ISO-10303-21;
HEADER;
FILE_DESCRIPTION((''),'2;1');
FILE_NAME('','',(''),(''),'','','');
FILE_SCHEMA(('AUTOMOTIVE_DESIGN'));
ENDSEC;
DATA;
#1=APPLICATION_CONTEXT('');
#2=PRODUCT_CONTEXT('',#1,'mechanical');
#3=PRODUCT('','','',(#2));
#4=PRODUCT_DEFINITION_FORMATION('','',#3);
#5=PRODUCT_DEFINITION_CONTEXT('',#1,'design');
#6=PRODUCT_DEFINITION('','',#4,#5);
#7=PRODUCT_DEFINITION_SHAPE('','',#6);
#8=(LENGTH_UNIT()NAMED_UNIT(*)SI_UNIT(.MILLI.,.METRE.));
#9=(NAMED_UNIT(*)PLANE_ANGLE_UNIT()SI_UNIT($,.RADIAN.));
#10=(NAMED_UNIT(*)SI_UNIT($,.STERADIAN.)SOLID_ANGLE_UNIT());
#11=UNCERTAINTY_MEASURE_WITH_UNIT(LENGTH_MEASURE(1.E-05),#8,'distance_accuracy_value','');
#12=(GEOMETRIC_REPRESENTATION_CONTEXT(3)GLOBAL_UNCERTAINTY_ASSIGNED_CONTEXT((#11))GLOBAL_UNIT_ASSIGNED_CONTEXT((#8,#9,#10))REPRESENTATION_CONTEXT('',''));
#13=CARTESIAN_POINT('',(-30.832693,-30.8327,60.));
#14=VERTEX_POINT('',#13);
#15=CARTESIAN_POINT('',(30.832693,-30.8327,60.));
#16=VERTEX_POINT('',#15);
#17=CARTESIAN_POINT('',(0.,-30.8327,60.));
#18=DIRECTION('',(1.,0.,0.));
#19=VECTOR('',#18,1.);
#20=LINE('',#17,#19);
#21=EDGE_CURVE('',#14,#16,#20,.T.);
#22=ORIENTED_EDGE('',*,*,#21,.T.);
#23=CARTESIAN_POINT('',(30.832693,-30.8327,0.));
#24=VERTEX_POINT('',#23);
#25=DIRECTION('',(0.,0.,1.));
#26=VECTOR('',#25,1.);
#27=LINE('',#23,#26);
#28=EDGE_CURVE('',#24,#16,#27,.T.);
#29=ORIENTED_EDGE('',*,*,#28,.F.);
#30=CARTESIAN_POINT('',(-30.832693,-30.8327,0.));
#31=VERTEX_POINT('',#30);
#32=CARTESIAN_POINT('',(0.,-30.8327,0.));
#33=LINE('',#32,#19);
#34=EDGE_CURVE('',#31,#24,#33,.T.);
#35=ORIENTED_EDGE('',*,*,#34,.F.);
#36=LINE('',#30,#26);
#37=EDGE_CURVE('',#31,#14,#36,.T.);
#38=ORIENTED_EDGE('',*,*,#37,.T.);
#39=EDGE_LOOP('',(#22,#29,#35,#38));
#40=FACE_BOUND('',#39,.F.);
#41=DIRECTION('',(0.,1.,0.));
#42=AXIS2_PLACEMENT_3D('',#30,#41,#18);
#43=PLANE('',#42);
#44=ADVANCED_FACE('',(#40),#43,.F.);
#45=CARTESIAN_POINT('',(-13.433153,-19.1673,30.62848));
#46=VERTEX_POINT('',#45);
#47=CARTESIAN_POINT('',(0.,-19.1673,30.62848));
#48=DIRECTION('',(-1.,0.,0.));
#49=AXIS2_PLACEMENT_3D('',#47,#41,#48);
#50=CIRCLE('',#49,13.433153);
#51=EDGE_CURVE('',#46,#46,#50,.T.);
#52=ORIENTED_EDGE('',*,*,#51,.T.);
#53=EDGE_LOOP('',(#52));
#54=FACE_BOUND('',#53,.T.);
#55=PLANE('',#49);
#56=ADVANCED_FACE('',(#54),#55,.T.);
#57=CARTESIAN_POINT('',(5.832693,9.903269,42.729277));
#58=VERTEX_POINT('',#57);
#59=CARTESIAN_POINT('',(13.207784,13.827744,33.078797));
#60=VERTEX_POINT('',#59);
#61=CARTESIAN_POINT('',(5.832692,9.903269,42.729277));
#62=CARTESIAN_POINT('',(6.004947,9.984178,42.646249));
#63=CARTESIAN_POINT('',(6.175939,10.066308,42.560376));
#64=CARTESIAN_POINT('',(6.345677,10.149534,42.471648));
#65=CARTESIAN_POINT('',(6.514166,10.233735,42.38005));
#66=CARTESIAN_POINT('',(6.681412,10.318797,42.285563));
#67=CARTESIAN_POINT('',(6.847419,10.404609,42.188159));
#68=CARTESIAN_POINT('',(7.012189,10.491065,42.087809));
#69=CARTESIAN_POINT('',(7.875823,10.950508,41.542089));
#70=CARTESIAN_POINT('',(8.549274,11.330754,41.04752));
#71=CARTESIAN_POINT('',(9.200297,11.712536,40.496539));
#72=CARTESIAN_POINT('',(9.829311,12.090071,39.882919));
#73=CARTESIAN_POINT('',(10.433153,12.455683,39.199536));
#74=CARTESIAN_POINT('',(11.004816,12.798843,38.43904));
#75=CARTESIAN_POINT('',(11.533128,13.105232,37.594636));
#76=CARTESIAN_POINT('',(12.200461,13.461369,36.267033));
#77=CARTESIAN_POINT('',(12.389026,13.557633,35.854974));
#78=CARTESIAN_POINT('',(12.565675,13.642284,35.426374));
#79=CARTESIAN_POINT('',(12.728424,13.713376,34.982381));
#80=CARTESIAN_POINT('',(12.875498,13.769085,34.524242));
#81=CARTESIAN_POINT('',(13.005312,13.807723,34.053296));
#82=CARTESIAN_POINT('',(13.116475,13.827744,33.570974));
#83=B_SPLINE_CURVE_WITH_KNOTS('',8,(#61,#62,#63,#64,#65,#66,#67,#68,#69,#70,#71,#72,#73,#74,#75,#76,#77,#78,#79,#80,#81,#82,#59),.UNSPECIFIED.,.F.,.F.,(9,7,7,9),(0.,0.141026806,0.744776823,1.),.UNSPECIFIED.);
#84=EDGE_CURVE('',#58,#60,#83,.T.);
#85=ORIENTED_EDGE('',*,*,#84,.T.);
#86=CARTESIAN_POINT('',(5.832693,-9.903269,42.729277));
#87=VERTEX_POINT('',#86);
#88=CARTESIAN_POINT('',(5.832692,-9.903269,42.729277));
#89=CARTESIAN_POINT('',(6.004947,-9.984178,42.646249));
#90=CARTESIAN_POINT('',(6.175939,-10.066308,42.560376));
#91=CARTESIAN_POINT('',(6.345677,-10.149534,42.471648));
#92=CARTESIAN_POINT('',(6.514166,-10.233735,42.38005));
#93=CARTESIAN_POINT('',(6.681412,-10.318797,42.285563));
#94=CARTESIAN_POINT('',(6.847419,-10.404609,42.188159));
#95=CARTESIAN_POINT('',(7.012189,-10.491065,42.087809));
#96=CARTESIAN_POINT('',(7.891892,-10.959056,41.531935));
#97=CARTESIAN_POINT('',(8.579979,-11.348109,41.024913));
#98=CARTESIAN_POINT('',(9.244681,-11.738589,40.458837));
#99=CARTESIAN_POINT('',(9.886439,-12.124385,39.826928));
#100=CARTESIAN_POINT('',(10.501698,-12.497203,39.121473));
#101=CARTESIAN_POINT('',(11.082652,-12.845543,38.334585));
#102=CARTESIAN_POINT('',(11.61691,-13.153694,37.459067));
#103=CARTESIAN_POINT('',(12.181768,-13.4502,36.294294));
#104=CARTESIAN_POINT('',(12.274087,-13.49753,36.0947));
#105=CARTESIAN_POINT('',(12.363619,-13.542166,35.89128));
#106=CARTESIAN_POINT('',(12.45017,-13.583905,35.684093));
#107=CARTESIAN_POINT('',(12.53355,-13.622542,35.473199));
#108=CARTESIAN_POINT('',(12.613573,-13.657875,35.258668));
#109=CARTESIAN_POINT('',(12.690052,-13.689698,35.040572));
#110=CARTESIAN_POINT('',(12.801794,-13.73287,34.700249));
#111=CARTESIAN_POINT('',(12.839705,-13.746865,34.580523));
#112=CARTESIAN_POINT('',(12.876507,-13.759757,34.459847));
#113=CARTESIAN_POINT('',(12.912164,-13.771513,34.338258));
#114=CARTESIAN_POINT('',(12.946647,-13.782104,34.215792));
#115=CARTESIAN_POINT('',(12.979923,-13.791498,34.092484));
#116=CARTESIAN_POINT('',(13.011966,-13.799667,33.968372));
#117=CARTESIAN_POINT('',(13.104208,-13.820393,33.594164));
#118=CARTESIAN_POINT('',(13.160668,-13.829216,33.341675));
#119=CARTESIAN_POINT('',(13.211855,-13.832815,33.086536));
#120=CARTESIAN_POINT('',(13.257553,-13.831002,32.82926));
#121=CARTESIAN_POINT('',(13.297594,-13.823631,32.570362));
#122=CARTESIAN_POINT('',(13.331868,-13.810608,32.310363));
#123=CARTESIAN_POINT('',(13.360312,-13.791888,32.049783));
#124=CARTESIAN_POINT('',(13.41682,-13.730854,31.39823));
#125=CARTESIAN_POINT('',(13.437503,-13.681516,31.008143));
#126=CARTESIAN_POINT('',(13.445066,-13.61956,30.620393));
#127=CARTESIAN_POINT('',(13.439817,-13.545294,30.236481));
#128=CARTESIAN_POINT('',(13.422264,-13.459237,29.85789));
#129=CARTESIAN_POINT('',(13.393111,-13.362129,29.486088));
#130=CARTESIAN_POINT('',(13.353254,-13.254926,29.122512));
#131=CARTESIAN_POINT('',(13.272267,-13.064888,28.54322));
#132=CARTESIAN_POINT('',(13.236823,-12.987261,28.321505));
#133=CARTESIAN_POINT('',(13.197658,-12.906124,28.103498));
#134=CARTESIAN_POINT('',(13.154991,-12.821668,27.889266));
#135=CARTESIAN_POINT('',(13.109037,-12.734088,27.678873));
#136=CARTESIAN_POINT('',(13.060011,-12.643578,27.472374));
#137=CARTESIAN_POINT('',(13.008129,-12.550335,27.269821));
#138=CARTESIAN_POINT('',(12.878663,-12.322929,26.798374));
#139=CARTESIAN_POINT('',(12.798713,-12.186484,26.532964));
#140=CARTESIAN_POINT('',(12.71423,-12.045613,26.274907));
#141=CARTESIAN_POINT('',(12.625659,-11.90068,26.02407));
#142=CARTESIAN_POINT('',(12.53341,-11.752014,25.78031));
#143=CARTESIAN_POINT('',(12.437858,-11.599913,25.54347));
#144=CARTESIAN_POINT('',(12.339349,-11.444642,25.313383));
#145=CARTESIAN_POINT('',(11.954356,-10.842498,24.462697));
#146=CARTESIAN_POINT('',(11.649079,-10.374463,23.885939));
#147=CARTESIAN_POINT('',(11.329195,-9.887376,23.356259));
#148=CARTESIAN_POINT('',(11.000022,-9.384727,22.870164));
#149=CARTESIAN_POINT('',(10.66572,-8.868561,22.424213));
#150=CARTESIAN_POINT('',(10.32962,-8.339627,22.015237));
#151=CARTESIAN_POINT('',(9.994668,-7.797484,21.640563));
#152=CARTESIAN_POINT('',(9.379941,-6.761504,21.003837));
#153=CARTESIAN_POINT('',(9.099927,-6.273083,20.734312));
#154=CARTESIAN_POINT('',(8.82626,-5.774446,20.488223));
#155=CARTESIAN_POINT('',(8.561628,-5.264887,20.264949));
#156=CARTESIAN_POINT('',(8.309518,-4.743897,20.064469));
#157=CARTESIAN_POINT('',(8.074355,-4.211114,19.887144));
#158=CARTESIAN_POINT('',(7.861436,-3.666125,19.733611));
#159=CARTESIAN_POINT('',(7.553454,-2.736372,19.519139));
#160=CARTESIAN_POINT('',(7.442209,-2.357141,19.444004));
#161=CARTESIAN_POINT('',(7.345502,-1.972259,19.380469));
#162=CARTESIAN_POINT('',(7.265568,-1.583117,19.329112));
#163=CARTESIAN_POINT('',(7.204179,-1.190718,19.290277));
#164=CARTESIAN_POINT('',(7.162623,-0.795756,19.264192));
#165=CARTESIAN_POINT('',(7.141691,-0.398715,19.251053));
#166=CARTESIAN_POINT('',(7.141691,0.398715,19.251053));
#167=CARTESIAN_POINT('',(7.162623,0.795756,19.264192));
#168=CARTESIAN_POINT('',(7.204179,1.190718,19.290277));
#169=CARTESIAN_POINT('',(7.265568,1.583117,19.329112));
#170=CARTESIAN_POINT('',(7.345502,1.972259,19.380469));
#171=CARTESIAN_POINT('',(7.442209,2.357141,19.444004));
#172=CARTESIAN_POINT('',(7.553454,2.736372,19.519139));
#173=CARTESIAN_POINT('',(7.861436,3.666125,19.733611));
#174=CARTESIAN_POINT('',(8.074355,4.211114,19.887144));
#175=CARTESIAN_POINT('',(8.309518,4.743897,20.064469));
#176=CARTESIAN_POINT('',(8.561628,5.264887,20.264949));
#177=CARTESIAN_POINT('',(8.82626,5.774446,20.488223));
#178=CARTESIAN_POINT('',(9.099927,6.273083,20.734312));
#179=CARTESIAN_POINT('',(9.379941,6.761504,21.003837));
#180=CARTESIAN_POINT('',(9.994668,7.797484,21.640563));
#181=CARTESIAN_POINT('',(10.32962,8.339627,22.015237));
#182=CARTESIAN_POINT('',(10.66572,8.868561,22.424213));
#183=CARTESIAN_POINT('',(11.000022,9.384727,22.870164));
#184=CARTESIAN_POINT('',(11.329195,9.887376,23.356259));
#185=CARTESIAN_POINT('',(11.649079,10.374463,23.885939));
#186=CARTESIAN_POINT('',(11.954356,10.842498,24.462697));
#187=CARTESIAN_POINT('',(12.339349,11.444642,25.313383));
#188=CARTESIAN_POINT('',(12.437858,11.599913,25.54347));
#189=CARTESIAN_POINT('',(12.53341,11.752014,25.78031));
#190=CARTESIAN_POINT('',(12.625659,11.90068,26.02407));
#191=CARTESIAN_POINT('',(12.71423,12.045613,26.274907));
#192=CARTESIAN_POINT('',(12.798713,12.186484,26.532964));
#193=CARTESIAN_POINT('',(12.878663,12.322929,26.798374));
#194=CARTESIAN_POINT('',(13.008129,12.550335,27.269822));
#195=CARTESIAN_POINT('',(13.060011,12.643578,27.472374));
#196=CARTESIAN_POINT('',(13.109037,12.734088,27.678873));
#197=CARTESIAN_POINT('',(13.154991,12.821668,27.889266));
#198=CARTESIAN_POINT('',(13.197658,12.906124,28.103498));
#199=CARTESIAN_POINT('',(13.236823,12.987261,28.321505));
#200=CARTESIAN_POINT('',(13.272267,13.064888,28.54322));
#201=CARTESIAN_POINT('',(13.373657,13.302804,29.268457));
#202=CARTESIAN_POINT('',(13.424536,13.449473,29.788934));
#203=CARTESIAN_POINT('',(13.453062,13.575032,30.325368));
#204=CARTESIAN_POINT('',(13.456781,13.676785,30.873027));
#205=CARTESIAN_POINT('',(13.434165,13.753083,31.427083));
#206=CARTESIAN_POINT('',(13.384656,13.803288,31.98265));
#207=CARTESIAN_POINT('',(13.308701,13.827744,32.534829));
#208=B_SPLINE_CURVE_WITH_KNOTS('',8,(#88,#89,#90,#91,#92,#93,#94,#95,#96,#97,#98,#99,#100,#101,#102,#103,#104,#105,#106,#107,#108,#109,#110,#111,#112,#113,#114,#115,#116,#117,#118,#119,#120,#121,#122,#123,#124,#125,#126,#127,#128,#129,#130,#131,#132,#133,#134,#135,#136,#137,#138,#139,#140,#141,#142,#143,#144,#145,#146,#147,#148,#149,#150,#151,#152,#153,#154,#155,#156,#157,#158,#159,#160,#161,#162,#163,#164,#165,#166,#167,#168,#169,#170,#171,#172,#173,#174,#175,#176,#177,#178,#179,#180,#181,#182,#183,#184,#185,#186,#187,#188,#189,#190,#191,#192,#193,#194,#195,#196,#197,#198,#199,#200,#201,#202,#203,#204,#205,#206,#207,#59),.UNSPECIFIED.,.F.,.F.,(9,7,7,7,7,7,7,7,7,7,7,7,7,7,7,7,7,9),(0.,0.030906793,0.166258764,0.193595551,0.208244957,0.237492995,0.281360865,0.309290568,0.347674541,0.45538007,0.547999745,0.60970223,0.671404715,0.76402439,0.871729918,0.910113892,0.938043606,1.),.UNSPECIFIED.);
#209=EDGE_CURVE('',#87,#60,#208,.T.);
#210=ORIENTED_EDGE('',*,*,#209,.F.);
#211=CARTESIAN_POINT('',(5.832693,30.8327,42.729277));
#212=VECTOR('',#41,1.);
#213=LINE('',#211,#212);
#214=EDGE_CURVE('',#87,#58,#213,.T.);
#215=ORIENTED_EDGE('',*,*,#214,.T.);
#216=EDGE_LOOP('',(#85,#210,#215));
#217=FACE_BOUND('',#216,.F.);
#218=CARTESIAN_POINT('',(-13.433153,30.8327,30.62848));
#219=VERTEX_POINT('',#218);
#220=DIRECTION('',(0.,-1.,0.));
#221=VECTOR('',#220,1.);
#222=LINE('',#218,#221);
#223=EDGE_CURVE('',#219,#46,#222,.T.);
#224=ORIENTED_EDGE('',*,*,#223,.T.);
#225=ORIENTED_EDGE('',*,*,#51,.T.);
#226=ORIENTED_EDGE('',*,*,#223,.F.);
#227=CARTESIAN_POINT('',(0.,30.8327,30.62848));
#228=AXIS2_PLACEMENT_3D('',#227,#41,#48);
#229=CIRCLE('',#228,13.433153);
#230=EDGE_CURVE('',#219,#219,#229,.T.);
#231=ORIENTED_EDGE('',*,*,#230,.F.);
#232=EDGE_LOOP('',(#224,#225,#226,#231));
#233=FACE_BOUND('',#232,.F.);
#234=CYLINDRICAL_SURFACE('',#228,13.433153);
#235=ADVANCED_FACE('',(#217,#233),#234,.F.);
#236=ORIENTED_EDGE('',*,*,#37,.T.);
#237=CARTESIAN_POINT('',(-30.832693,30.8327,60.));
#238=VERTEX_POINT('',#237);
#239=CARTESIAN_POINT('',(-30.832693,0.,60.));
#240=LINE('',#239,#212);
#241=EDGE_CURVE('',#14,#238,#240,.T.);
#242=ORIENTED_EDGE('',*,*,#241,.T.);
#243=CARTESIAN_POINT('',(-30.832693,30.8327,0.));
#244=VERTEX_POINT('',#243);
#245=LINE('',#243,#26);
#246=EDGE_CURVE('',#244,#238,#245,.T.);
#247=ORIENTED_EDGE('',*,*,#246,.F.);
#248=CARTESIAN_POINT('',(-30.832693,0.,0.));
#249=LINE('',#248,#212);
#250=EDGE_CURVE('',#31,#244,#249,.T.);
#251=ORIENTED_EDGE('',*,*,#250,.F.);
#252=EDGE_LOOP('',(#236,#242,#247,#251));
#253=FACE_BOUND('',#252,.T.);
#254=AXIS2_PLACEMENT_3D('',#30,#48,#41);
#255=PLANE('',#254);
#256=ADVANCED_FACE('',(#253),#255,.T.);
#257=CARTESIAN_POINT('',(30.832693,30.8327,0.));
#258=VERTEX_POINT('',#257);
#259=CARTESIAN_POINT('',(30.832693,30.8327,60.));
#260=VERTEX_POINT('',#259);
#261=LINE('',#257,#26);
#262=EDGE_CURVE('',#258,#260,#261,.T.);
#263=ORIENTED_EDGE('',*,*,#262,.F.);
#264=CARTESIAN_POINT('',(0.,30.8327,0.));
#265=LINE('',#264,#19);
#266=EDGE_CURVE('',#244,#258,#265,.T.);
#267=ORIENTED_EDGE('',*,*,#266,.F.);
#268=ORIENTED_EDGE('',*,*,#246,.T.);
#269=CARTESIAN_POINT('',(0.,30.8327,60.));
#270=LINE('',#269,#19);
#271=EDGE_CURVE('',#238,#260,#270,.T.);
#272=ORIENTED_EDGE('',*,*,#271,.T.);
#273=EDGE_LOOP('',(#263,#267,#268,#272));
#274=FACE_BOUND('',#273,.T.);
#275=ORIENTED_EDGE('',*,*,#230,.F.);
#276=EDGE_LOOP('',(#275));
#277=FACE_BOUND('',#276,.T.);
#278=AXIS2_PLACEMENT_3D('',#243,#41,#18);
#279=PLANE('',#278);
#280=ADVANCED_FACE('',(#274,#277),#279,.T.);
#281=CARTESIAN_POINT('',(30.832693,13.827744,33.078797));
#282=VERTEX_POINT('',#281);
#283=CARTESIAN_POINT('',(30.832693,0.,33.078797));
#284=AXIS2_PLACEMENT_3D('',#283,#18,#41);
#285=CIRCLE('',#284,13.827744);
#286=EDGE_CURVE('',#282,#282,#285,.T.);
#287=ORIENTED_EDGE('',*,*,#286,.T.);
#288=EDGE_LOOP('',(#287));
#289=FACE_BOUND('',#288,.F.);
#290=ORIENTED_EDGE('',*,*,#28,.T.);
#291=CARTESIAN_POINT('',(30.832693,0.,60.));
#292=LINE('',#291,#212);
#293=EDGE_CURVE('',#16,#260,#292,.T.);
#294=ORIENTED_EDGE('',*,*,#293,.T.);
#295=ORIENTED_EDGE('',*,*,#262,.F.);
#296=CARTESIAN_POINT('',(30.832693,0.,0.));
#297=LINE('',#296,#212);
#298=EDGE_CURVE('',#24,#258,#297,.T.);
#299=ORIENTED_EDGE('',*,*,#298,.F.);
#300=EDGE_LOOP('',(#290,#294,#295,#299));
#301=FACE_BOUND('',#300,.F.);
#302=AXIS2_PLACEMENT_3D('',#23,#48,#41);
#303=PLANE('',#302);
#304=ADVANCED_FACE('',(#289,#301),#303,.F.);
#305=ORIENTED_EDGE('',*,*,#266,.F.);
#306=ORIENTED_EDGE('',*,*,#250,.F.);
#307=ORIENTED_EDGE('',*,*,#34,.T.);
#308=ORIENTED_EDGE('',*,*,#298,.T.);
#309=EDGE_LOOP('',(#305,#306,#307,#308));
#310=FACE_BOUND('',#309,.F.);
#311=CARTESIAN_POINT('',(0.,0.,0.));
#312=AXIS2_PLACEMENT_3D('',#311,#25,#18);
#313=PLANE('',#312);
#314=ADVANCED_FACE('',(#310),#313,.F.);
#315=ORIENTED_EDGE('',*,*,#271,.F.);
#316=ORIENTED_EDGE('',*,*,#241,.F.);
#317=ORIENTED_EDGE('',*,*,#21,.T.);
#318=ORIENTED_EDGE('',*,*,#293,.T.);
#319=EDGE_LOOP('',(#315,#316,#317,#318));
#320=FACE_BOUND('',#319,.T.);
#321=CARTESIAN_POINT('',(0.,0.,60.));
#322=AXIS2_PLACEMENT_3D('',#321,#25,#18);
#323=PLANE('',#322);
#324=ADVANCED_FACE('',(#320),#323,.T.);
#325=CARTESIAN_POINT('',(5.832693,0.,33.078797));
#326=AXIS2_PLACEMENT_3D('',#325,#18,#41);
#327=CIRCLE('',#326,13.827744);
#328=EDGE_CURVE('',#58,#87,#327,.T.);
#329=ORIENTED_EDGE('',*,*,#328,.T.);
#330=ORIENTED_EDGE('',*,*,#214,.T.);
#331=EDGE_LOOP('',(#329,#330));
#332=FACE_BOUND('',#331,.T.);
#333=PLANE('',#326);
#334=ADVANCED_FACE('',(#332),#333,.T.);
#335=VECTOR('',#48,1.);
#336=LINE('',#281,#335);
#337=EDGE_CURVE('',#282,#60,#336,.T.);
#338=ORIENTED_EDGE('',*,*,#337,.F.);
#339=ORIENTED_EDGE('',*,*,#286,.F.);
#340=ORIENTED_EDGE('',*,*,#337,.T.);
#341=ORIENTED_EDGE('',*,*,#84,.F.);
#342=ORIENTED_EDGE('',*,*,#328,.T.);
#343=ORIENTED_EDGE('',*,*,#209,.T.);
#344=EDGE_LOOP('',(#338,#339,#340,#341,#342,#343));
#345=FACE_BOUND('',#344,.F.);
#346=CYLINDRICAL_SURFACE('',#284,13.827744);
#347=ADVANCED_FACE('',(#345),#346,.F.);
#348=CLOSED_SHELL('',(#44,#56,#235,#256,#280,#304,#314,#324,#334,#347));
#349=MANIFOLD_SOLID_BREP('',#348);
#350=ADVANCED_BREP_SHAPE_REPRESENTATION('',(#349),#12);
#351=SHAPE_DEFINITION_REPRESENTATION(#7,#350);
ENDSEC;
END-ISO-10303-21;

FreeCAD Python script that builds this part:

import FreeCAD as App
import Part
import Sketcher
Q = App.Units.Quantity

doc = App.newDocument("Part")
body = doc.addObject("PartDesign::Body", "Body")

# Sketch on XY plane
sketch1 = doc.addObject("Sketcher::SketchObject", "Sketch")
body.addObject(sketch1)
sketch1.AttachmentSupport = (doc.XY_Plane, [""])
sketch1.MapMode = "FlatFace"
sketch1.addGeometry([
    Part.LineSegment(App.Vector(-31, 31, 0), App.Vector(-31, -31, 0)),
    Part.LineSegment(App.Vector(-31, -31, 0), App.Vector(31, -31, 0)),
    Part.LineSegment(App.Vector(31, -31, 0), App.Vector(31, 31, 0)),
    Part.LineSegment(App.Vector(31, 31, 0), App.Vector(-31, 31, 0)),
], False)
sketch1.addConstraint([
    Sketcher.Constraint("Coincident", 0, 2, 1, 1),
    Sketcher.Constraint("Coincident", 1, 2, 2, 1),
    Sketcher.Constraint("Coincident", 2, 2, 3, 1),
    Sketcher.Constraint("Coincident", 3, 2, 0, 1),
    Sketcher.Constraint("Vertical", 0),
    Sketcher.Constraint("Horizontal", 1),
    Sketcher.Constraint("Vertical", 2),
    Sketcher.Constraint("Horizontal", 3),
    Sketcher.Constraint("Symmetric", 0, 2, 2, 2, -1, 1),
    Sketcher.Constraint("DistanceY", 0, 2, 0, 1, Q("61.6654 mm")),
    Sketcher.Constraint("DistanceX", 1, 1, 1, 2, Q("61.665386 mm")),
])
pad1 = doc.addObject("PartDesign::Pad", "Pad")
body.addObject(pad1)
pad1.Profile = sketch1
pad1.Length = 60

# Sketch on YZ plane
sketch2 = doc.addObject("Sketcher::SketchObject", "Sketch001")
body.addObject(sketch2)
sketch2.AttachmentSupport = (doc.YZ_Plane, [""])
sketch2.MapMode = "FlatFace"
sketch2.AttachmentOffset = App.Placement(App.Vector(0, 0, 30.832693), App.Rotation())
sketch2.addGeometry(Part.Circle(App.Vector(0, 33, 0), App.Vector(0, 0, 1), 14), False)
sketch2.addConstraint([
    Sketcher.Constraint("PointOnObject", 0, 3, -2),
    Sketcher.Constraint("Diameter", 0, Q("27.655488 mm")),
    Sketcher.Constraint("DistanceY", -1, 1, 0, 3, Q("33.078797 mm")),
])
pocket1 = doc.addObject("PartDesign::Pocket", "Pocket")
body.addObject(pocket1)
pocket1.Profile = sketch2
pocket1.Length = 25

# Sketch on XZ plane
sketch3 = doc.addObject("Sketcher::SketchObject", "Sketch002")
body.addObject(sketch3)
sketch3.AttachmentSupport = (doc.XZ_Plane, [""])
sketch3.MapMode = "FlatFace"
sketch3.AttachmentOffset = App.Placement(App.Vector(0, 0, -30.8327), App.Rotation())
sketch3.addGeometry(Part.Circle(App.Vector(0, 30, 0), App.Vector(0, 0, 1), 17), False)
sketch3.addConstraint([
    Sketcher.Constraint("PointOnObject", 0, 3, -2),
    Sketcher.Constraint("Diameter", 0, Q("33.67588 mm")),
    Sketcher.Constraint("DistanceY", -1, 1, 0, 3, Q("30.424289 mm")),
])
pocket2 = doc.addObject("PartDesign::Pocket", "Pocket001")
body.addObject(pocket2)
pocket2.Profile = sketch3
pocket2.Length = 50

# Sketch on XZ plane
sketch4 = doc.addObject("Sketcher::SketchObject", "Sketch003")
body.addObject(sketch4)
sketch4.AttachmentSupport = (doc.XZ_Plane, [""])
sketch4.MapMode = "FlatFace"
sketch4.AttachmentOffset = App.Placement(App.Vector(0, 0, -30.8327), App.Rotation())
sketch4.addGeometry(Part.Circle(App.Vector(0, 31, 0), App.Vector(0, 0, 1), 13), False)
sketch4.addConstraint([
    Sketcher.Constraint("PointOnObject", 0, 3, -2),
    Sketcher.Constraint("Diameter", 0, Q("26.866306 mm")),
    Sketcher.Constraint("DistanceY", -1, 1, 0, 3, Q("30.62848 mm")),
])
pocket3 = doc.addObject("PartDesign::Pocket", "Pocket002")
body.addObject(pocket3)
pocket3.Profile = sketch4
pocket3.Length = 50
pocket3.Reversed = True

doc.recompute()
